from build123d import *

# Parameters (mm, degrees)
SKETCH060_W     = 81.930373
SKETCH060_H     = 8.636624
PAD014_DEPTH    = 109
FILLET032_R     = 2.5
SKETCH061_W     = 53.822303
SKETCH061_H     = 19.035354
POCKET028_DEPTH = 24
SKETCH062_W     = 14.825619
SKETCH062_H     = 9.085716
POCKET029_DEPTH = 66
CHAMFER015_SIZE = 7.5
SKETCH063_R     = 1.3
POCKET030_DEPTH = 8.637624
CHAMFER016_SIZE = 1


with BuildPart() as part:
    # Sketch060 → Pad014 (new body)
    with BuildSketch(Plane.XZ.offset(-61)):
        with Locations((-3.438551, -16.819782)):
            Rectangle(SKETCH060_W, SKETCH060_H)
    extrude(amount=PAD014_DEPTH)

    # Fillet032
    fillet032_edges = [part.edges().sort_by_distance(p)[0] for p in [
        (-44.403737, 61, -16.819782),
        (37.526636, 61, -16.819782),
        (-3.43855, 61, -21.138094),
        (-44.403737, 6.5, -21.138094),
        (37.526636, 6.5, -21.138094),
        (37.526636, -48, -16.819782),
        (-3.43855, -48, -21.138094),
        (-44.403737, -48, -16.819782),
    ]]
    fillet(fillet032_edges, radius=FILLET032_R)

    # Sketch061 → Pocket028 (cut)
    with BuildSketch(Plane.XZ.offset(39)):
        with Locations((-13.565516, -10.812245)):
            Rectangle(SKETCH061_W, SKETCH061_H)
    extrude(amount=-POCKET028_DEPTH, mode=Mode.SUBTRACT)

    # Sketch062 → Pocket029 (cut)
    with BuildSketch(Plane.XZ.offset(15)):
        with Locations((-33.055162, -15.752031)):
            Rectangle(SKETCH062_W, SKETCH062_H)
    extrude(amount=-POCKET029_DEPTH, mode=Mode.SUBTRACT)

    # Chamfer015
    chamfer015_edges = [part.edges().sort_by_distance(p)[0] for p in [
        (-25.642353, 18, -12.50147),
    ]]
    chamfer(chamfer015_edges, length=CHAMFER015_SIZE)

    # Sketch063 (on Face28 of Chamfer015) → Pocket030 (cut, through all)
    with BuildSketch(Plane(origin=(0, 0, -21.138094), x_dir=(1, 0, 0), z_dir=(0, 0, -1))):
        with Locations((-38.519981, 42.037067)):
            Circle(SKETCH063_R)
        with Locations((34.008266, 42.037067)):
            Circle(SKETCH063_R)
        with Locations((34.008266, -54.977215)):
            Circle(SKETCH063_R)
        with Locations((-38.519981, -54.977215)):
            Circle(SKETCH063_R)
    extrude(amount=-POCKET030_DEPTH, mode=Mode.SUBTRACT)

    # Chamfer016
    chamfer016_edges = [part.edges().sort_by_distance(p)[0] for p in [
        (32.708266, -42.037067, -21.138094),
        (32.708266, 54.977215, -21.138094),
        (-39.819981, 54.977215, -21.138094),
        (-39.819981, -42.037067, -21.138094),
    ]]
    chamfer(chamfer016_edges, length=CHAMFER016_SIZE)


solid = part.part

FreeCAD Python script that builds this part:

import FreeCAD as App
import Part
import Sketcher
from FreeCAD import Vector
Q = App.Units.Quantity


def edges_at(feature, points):
    """Names of the edges that pass closest to the given points."""
    edges = feature.Shape.Edges
    near = lambda p: min(range(len(edges)), key=lambda i: edges[i].distToShape(Part.Vertex(*p))[0])
    return sorted({f"Edge{near(p) + 1}" for p in points})


def add_polygon(sketch, points):
    """Adds a closed chain of lines whose ends are joined by coincident constraints."""
    first, n = sketch.GeometryCount, len(points)
    for a, b in zip(points, points[1:] + points[:1]):
        sketch.addGeometry(Part.LineSegment(App.Vector(*a, 0), App.Vector(*b, 0)), False)
    for i in range(n):
        sketch.addConstraint(Sketcher.Constraint("Coincident", first + i, 2, first + (i + 1) % n, 1))

doc = App.newDocument("Part")
body = doc.addObject("PartDesign::Body", "Body")

sketch1 = doc.addObject("Sketcher::SketchObject", "Sketch")
body.addObject(sketch1)
sketch1.AttachmentSupport = (doc.XZ_Plane, [""])
sketch1.MapMode = "FlatFace"
sketch1.AttachmentOffset = App.Placement(Vector(0, 0, -61), App.Rotation())
add_polygon(sketch1, [(-44, -13), (-44, -21), (38, -21), (38, -13)])
sketch1.addConstraint(Sketcher.Constraint("Vertical", 0))
sketch1.addConstraint(Sketcher.Constraint("Horizontal", 1))
sketch1.addConstraint(Sketcher.Constraint("Vertical", 2))
sketch1.addConstraint(Sketcher.Constraint("Horizontal", 3))
sketch1.addConstraint(Sketcher.Constraint("DistanceX", 1, 1, 1, 2, Q("81.930373 mm")))
sketch1.addConstraint(Sketcher.Constraint("DistanceY", 0, 2, 0, 1, Q("8.636624 mm")))
sketch1.addConstraint(Sketcher.Constraint("DistanceY", 2, 2, -1, 1, Q("12.50147 mm")))
sketch1.addConstraint(Sketcher.Constraint("DistanceX", 0, 2, -1, 1, Q("44.403737 mm")))
pad1 = doc.addObject("PartDesign::Pad", "Pad")
body.addObject(pad1)
pad1.Profile = sketch1
pad1.Length = 109
doc.recompute()

fillet = doc.addObject("PartDesign::Fillet", "Fillet")
body.addObject(fillet)
fillet.Base = (pad1, edges_at(pad1, [
    (-44.404, 61, -16.82),
    (37.527, 61, -16.82),
    (-3.439, 61, -21.138),
    (-44.404, 6.5, -21.138),
    (37.527, 6.5, -21.138),
    (37.527, -48, -16.82),
    (-3.439, -48, -21.138),
    (-44.404, -48, -16.82),
]))
fillet.Radius = 2.5

sketch2 = doc.addObject("Sketcher::SketchObject", "Sketch001")
body.addObject(sketch2)
sketch2.AttachmentSupport = (doc.XZ_Plane, [""])
sketch2.MapMode = "FlatFace"
sketch2.AttachmentOffset = App.Placement(Vector(0, 0, 39), App.Rotation())
add_polygon(sketch2, [(-40, -1), (-40, -20), (13, -20), (13, -1)])
sketch2.addConstraint(Sketcher.Constraint("Vertical", 0))
sketch2.addConstraint(Sketcher.Constraint("Horizontal", 1))
sketch2.addConstraint(Sketcher.Constraint("Vertical", 2))
sketch2.addConstraint(Sketcher.Constraint("Horizontal", 3))
sketch2.addConstraint(Sketcher.Constraint("DistanceX", 1, 1, 1, 2, Q("53.822303 mm")))
sketch2.addConstraint(Sketcher.Constraint("DistanceY", 0, 2, 0, 1, Q("19.035354 mm")))
sketch2.addConstraint(Sketcher.Constraint("DistanceY", 0, 2, -1, 1, Q("20.329922 mm")))
sketch2.addConstraint(Sketcher.Constraint("DistanceX", 0, 2, -1, 1, Q("40.476667 mm")))
pocket1 = doc.addObject("PartDesign::Pocket", "Pocket")
body.addObject(pocket1)
pocket1.Profile = sketch2
pocket1.Length = 24

sketch3 = doc.addObject("Sketcher::SketchObject", "Sketch002")
body.addObject(sketch3)
sketch3.AttachmentSupport = (doc.XZ_Plane, [""])
sketch3.MapMode = "FlatFace"
sketch3.AttachmentOffset = App.Placement(Vector(0, 0, 15), App.Rotation())
add_polygon(sketch3, [(-40, -11), (-40, -20), (-26, -20), (-26, -11)])
sketch3.addConstraint(Sketcher.Constraint("Vertical", 0))
sketch3.addConstraint(Sketcher.Constraint("Horizontal", 1))
sketch3.addConstraint(Sketcher.Constraint("Vertical", 2))
sketch3.addConstraint(Sketcher.Constraint("Horizontal", 3))
sketch3.addConstraint(Sketcher.Constraint("DistanceX", 1, 1, 1, 2, Q("14.825619 mm")))
sketch3.addConstraint(Sketcher.Constraint("DistanceY", 0, 2, 0, 1, Q("9.085716 mm")))
sketch3.addConstraint(Sketcher.Constraint("DistanceX", 0, 2, -1, 1, Q("40.467971 mm")))
sketch3.addConstraint(Sketcher.Constraint("DistanceY", 0, 2, -1, 1, Q("20.294889 mm")))
pocket2 = doc.addObject("PartDesign::Pocket", "Pocket001")
body.addObject(pocket2)
pocket2.Profile = sketch3
pocket2.Length = 66
doc.recompute()

chamfer = doc.addObject("PartDesign::Chamfer", "Chamfer")
body.addObject(chamfer)
chamfer.Base = (pocket2, edges_at(pocket2, [(-25.642, 18, -12.501)]))
chamfer.Size = 7.5

sketch4 = doc.addObject("Sketcher::SketchObject", "Sketch003")
body.addObject(sketch4)
sketch4.AttachmentSupport = (doc.XY_Plane, [""])
sketch4.MapMode = "FlatFace"
sketch4.AttachmentOffset = App.Placement(Vector(0, 0, -21.138094), App.Rotation())
sketch4.addGeometry(Part.Circle(Vector(-38.5, -42, 0), Vector(0, 0, 1), 1.3), False)
sketch4.addGeometry(Part.Circle(Vector(34, -42, 0), Vector(0, 0, 1), 1.3), False)
sketch4.addGeometry(Part.Circle(Vector(34, 55, 0), Vector(0, 0, 1), 1.3), False)
sketch4.addGeometry(Part.Circle(Vector(-38.5, 55, 0), Vector(0, 0, 1), 1.3), False)
sketch4.addConstraint(Sketcher.Constraint("Equal", 0, 1))
sketch4.addConstraint(Sketcher.Constraint("Equal", 1, 2))
sketch4.addConstraint(Sketcher.Constraint("Equal", 2, 3))
sketch4.addConstraint(Sketcher.Constraint("Horizontal", 0, 3, 1, 3))
sketch4.addConstraint(Sketcher.Constraint("Horizontal", 2, 3, 3, 3))
sketch4.addConstraint(Sketcher.Constraint("Vertical", 1, 3, 2, 3))
sketch4.addConstraint(Sketcher.Constraint("Vertical", 0, 3, 3, 3))
sketch4.addConstraint(Sketcher.Constraint("Diameter", 0, Q("2.6 mm")))
sketch4.addConstraint(Sketcher.Constraint("DistanceX", 0, 3, -1, 1, Q("38.519981 mm")))
sketch4.addConstraint(Sketcher.Constraint("DistanceY", 0, 3, -1, 1, Q("42.037067 mm")))
sketch4.addConstraint(Sketcher.Constraint("DistanceX", -1, 1, 1, 3, Q("34.008266 mm")))
sketch4.addConstraint(Sketcher.Constraint("DistanceY", -1, 1, 2, 3, Q("54.977215 mm")))
pocket3 = doc.addObject("PartDesign::Pocket", "Pocket002")
body.addObject(pocket3)
pocket3.Profile = sketch4
pocket3.Type = "ThroughAll"
pocket3.Reversed = True
doc.recompute()

chamfer2 = doc.addObject("PartDesign::Chamfer", "Chamfer001")
body.addObject(chamfer2)
chamfer2.Base = (pocket3, edges_at(pocket3, [
    (32.708, -42.037, -21.138),
    (32.708, 54.977, -21.138),
    (-39.82, 54.977, -21.138),
    (-39.82, -42.037, -21.138),
]))
chamfer2.Size = 1

doc.recompute()
